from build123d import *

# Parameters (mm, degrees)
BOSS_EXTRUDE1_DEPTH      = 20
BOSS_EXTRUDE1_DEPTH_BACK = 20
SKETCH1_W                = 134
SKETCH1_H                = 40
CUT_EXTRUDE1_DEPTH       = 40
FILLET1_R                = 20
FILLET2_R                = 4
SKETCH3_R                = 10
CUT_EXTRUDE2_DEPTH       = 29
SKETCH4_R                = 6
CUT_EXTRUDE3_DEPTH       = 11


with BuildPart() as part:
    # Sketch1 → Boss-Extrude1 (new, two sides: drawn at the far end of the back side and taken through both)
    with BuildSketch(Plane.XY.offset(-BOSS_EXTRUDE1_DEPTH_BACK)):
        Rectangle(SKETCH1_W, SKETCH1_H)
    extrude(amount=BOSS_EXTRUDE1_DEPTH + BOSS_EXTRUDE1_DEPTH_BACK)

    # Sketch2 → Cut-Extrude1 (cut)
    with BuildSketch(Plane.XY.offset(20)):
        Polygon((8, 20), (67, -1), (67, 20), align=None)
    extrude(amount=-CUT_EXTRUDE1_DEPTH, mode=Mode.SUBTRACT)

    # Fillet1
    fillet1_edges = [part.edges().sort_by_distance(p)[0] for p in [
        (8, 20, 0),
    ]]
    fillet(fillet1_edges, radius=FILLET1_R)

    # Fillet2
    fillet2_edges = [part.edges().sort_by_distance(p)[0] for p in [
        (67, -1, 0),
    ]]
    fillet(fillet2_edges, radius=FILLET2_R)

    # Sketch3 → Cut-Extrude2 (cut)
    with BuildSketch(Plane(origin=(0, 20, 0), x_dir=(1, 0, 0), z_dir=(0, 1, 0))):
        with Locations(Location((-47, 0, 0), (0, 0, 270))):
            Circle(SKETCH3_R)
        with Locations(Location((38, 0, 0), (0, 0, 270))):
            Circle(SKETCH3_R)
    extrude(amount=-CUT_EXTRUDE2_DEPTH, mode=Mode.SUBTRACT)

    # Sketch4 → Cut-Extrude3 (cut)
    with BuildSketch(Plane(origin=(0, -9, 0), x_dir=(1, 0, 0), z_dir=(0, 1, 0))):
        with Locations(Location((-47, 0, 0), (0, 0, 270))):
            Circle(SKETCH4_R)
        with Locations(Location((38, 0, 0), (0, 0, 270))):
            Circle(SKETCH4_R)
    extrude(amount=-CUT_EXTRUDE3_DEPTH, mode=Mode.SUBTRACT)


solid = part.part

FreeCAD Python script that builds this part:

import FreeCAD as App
import Part
import Sketcher
from FreeCAD import Vector
Q = App.Units.Quantity


def edges_at(feature, points):
    """Names of the edges that pass closest to the given points."""
    edges = feature.Shape.Edges
    near = lambda p: min(range(len(edges)), key=lambda i: edges[i].distToShape(Part.Vertex(*p))[0])
    return sorted({f"Edge{near(p) + 1}" for p in points})

doc = App.newDocument("Part")
params = doc.addObject("Spreadsheet::Sheet", "Params")
for row, (alias, value) in enumerate([
    ("sketch1_width", "134 mm"),
    ("sketch1_height", "40 mm"),
    ("pad1_length", "20 mm"),
    ("pad1_length2", "20 mm"),
    ("sketch2_width", "59 mm"),
    ("sketch2_height", "21 mm"),
    ("pocket1_length", "40 mm"),
    ("fillet_radius", "20 mm"),
    ("fillet2_radius", "4 mm"),
    ("sketch3_diameter", "20 mm"),
    ("pocket2_length", "29 mm"),
    ("sketch4_diameter", "12 mm"),
    ("pocket3_length", "11 mm"),
], start=1):
    params.set(f"A{row}", alias)
    params.set(f"B{row}", "=" + value)
    params.setAlias(f"B{row}", alias)

body = doc.addObject("PartDesign::Body", "Body")

# Sketch on XY plane
sketch1 = body.newObject("Sketcher::SketchObject", "Sketch")
sketch1.AttachmentSupport = (doc.getObject("XY_Plane"), [""])
sketch1.MapMode = "FlatFace"
sketch1.addGeometry([
    Part.LineSegment(Vector(-67, 20, 0), Vector(-67, -20, 0)),
    Part.LineSegment(Vector(-67, -20, 0), Vector(67, -20, 0)),
    Part.LineSegment(Vector(67, -20, 0), Vector(67, 20, 0)),
    Part.LineSegment(Vector(67, 20, 0), Vector(-67, 20, 0)),
], False)
sketch1.addConstraint([
    Sketcher.Constraint("Coincident", 0, 2, 1, 1),
    Sketcher.Constraint("Coincident", 1, 2, 2, 1),
    Sketcher.Constraint("Coincident", 2, 2, 3, 1),
    Sketcher.Constraint("Coincident", 3, 2, 0, 1),
    Sketcher.Constraint("Vertical", 0),
    Sketcher.Constraint("Horizontal", 1),
    Sketcher.Constraint("Vertical", 2),
    Sketcher.Constraint("Horizontal", 3),
    Sketcher.Constraint("Symmetric", 0, 2, 2, 2, -1, 1),
    Sketcher.Constraint("DistanceX", 1, 1, 1, 2, Q("134 mm")),
    Sketcher.Constraint("DistanceY", 0, 2, 0, 1, Q("40 mm")),
])
sketch1.setExpression("Constraints[9]", "Params.sketch1_width")
sketch1.setExpression("Constraints[10]", "Params.sketch1_height")
pad1 = body.newObject("PartDesign::Pad", "Pad")
pad1.Profile = sketch1
pad1.Type = "TwoLengths"
pad1.setExpression("Length", "Params.pad1_length")
pad1.setExpression("Length2", "Params.pad1_length2")

# Sketch on XY plane
sketch2 = body.newObject("Sketcher::SketchObject", "Sketch001")
sketch2.AttachmentSupport = (doc.getObject("XY_Plane"), [""])
sketch2.MapMode = "FlatFace"
sketch2.AttachmentOffset = App.Placement(Vector(0, 0, 20), App.Rotation())
sketch2.addGeometry([
    Part.LineSegment(Vector(8, 20, 0), Vector(67, -1, 0)),
    Part.LineSegment(Vector(67, -1, 0), Vector(67, 20, 0)),
    Part.LineSegment(Vector(67, 20, 0), Vector(8, 20, 0)),
], False)
sketch2.addConstraint([
    Sketcher.Constraint("Coincident", 0, 2, 1, 1),
    Sketcher.Constraint("Coincident", 1, 2, 2, 1),
    Sketcher.Constraint("Coincident", 2, 2, 0, 1),
    Sketcher.Constraint("Vertical", 1),
    Sketcher.Constraint("Horizontal", 2),
    Sketcher.Constraint("DistanceX", 2, 2, 2, 1, Q("59 mm")),
    Sketcher.Constraint("DistanceY", 1, 1, 1, 2, Q("21 mm")),
    Sketcher.Constraint("DistanceX", -1, 1, 0, 2, Q("67 mm")),
    Sketcher.Constraint("DistanceY", 0, 2, -1, 1, Q("1 mm")),
])
sketch2.setExpression("Constraints[5]", "Params.sketch2_width")
sketch2.setExpression("Constraints[6]", "Params.sketch2_height")
pocket1 = body.newObject("PartDesign::Pocket", "Pocket")
pocket1.Profile = sketch2
pocket1.setExpression("Length", "Params.pocket1_length")
doc.recompute()

fillet = body.newObject("PartDesign::Fillet", "Fillet")
fillet.Base = (pocket1, edges_at(pocket1, [(8, 20, 0)]))
fillet.setExpression("Radius", "Params.fillet_radius")
doc.recompute()

fillet2 = body.newObject("PartDesign::Fillet", "Fillet001")
fillet2.Base = (fillet, edges_at(fillet, [(67, -1, 0)]))
fillet2.setExpression("Radius", "Params.fillet2_radius")

# Sketch on XZ plane
sketch3 = body.newObject("Sketcher::SketchObject", "Sketch002")
sketch3.AttachmentSupport = (doc.getObject("XZ_Plane"), [""])
sketch3.MapMode = "FlatFace"
sketch3.AttachmentOffset = App.Placement(Vector(0, 0, -20), App.Rotation())
sketch3.addGeometry([
    Part.Circle(Vector(-47, 0, 0), Vector(0, 0, 1), 10),
    Part.Circle(Vector(38, 0, 0), Vector(0, 0, 1), 10),
], False)
sketch3.addConstraint([
    Sketcher.Constraint("Equal", 0, 1),
    Sketcher.Constraint("PointOnObject", 0, 3, -1),
    Sketcher.Constraint("PointOnObject", 1, 3, -1),
    Sketcher.Constraint("Diameter", 0, Q("20 mm")),
    Sketcher.Constraint("DistanceX", 0, 3, -1, 1, Q("47 mm")),
    Sketcher.Constraint("DistanceX", -1, 1, 1, 3, Q("38 mm")),
])
sketch3.setExpression("Constraints[3]", "Params.sketch3_diameter")
pocket2 = body.newObject("PartDesign::Pocket", "Pocket001")
pocket2.Profile = sketch3
pocket2.setExpression("Length", "Params.pocket2_length")
pocket2.Reversed = True

# Sketch on XZ plane
sketch4 = body.newObject("Sketcher::SketchObject", "Sketch003")
sketch4.AttachmentSupport = (doc.getObject("XZ_Plane"), [""])
sketch4.MapMode = "FlatFace"
sketch4.AttachmentOffset = App.Placement(Vector(0, 0, 9), App.Rotation())
sketch4.addGeometry([
    Part.Circle(Vector(-47, 0, 0), Vector(0, 0, 1), 6),
    Part.Circle(Vector(38, 0, 0), Vector(0, 0, 1), 6),
], False)
sketch4.addConstraint([
    Sketcher.Constraint("Equal", 0, 1),
    Sketcher.Constraint("PointOnObject", 0, 3, -1),
    Sketcher.Constraint("PointOnObject", 1, 3, -1),
    Sketcher.Constraint("Diameter", 0, Q("12 mm")),
    Sketcher.Constraint("DistanceX", 0, 3, -1, 1, Q("47 mm")),
    Sketcher.Constraint("DistanceX", -1, 1, 1, 3, Q("38 mm")),
])
sketch4.setExpression("Constraints[3]", "Params.sketch4_diameter")
pocket3 = body.newObject("PartDesign::Pocket", "Pocket002")
pocket3.Profile = sketch4
pocket3.setExpression("Length", "Params.pocket3_length")
pocket3.Reversed = True

doc.recompute()
